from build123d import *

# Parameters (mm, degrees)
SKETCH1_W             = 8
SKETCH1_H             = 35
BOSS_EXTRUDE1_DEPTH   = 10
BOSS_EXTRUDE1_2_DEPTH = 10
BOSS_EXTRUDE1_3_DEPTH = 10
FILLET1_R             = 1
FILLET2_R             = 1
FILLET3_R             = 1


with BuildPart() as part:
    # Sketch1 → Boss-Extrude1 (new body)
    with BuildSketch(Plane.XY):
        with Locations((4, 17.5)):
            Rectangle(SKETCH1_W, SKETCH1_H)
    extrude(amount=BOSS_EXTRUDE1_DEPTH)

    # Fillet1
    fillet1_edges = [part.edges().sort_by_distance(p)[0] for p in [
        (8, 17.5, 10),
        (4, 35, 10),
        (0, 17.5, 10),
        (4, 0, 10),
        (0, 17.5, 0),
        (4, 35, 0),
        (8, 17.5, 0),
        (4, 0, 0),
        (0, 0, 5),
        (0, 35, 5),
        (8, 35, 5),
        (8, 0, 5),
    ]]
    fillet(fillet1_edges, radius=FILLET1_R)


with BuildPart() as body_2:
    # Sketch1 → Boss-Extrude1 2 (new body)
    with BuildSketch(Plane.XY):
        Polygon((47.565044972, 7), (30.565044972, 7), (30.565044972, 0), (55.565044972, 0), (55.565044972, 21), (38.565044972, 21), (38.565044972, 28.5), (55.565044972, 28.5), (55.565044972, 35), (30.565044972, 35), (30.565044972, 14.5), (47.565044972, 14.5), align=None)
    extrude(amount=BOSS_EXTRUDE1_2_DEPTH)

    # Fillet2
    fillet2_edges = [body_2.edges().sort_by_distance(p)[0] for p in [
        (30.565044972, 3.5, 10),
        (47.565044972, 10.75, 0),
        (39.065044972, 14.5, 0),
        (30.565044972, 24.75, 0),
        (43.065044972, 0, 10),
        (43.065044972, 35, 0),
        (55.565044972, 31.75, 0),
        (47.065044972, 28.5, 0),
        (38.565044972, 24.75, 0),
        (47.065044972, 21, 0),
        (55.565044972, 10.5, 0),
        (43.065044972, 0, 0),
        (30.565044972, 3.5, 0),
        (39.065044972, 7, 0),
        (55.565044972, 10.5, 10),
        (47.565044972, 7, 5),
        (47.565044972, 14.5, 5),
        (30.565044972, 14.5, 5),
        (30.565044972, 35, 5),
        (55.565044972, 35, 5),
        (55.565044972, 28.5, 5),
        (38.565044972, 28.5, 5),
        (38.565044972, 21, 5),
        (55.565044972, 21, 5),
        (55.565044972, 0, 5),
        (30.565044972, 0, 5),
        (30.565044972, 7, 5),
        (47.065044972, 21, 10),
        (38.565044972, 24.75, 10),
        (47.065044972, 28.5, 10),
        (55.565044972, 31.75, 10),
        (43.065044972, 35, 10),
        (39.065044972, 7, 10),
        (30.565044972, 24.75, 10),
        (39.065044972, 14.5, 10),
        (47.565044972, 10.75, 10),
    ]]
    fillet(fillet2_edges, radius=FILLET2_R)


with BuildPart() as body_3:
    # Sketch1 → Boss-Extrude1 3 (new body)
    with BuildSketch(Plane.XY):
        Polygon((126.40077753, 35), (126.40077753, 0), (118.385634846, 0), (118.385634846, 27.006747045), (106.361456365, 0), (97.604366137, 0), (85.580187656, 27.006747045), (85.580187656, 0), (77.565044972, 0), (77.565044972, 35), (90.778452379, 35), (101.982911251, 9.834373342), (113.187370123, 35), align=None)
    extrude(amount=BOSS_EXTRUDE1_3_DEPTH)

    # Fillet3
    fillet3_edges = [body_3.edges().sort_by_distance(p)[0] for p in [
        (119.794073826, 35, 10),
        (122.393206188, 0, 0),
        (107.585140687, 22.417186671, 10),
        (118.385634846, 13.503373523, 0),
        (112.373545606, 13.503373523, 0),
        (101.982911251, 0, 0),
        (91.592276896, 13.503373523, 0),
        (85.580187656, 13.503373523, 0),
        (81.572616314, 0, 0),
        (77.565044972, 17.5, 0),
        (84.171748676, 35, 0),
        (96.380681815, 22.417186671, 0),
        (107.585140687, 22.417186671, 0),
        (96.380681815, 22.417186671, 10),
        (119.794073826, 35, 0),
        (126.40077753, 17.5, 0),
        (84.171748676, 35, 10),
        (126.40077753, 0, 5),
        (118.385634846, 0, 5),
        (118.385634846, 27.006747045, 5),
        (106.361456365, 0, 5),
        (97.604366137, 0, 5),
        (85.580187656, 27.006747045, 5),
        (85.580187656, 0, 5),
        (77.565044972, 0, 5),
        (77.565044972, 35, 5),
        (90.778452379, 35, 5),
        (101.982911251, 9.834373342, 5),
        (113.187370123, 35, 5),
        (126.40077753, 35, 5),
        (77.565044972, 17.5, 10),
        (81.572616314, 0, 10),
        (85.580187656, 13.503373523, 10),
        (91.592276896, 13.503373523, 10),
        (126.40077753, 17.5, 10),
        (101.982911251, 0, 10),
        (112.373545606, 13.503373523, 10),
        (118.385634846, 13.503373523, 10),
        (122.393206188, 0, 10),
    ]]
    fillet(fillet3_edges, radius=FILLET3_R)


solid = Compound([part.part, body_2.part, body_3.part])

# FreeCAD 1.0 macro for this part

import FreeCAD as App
import Part
import Sketcher

V = App.Vector
Q = App.Units.Quantity

doc = App.newDocument("Part")
body = doc.addObject("PartDesign::Body", "Body")

# Sketch on XY plane
sketch1 = doc.addObject("Sketcher::SketchObject", "Sketch")
body.addObject(sketch1)
sketch1.AttachmentSupport = (doc.XY_Plane, [""])
sketch1.MapMode = "FlatFace"
sketch1.addGeometry([
    Part.LineSegment(V(0, 35, 0), V(0, 0, 0)),
    Part.LineSegment(V(0, 0, 0), V(8, 0, 0)),
    Part.LineSegment(V(8, 0, 0), V(8, 35, 0)),
    Part.LineSegment(V(8, 35, 0), V(0, 35, 0)),
], False)
sketch1.addConstraint([
    Sketcher.Constraint("Coincident", 0, 2, 1, 1),
    Sketcher.Constraint("Coincident", 1, 2, 2, 1),
    Sketcher.Constraint("Coincident", 2, 2, 3, 1),
    Sketcher.Constraint("Coincident", 3, 2, 0, 1),
    Sketcher.Constraint("Vertical", 0),
    Sketcher.Constraint("Horizontal", 1),
    Sketcher.Constraint("Vertical", 2),
    Sketcher.Constraint("Horizontal", 3),
    Sketcher.Constraint("Coincident", 0, 2, -1, 1),
    Sketcher.Constraint("DistanceX", 1, 1, 1, 2, 8.0),
    Sketcher.Constraint("DistanceY", 0, 2, 0, 1, 35.0),
])
pad1 = doc.addObject("PartDesign::Pad", "Pad")
body.addObject(pad1)
pad1.Profile = sketch1
pad1.Length = 10
doc.recompute()

fillet = doc.addObject("PartDesign::Fillet", "Fillet")
body.addObject(fillet)
fillet.Base = (pad1, ["Edge1"])
fillet.UseAllEdges = True
fillet.Radius = 1
body2 = doc.addObject("PartDesign::Body", "Body001")

# Sketch on XY plane
sketch2 = doc.addObject("Sketcher::SketchObject", "Sketch001")
body2.addObject(sketch2)
sketch2.AttachmentSupport = (doc.getObject("XY_Plane001"), [""])
sketch2.MapMode = "FlatFace"
sketch2.addGeometry([
    Part.LineSegment(V(48, 7, 0), V(31, 7, 0)),  # 0
    Part.LineSegment(V(31, 7, 0), V(31, 0, 0)),  # 1
    Part.LineSegment(V(31, 0, 0), V(56, 0, 0)),  # 2
    Part.LineSegment(V(56, 0, 0), V(56, 21, 0)),  # 3
    Part.LineSegment(V(56, 21, 0), V(39, 21, 0)),  # 4
    Part.LineSegment(V(39, 21, 0), V(39, 28, 0)),  # 5
    Part.LineSegment(V(39, 28, 0), V(56, 28, 0)),  # 6
    Part.LineSegment(V(56, 28, 0), V(56, 35, 0)),  # 7
    Part.LineSegment(V(56, 35, 0), V(31, 35, 0)),  # 8
    Part.LineSegment(V(31, 35, 0), V(31, 14, 0)),  # 9
    Part.LineSegment(V(31, 14, 0), V(48, 14, 0)),  # 10
    Part.LineSegment(V(48, 14, 0), V(48, 7, 0)),  # 11
], False)
sketch2.addConstraint([
    Sketcher.Constraint("Coincident", 0, 2, 1, 1),
    Sketcher.Constraint("Coincident", 1, 2, 2, 1),
    Sketcher.Constraint("Coincident", 2, 2, 3, 1),
    Sketcher.Constraint("Coincident", 3, 2, 4, 1),
    Sketcher.Constraint("Coincident", 4, 2, 5, 1),
    Sketcher.Constraint("Coincident", 5, 2, 6, 1),
    Sketcher.Constraint("Coincident", 6, 2, 7, 1),
    Sketcher.Constraint("Coincident", 7, 2, 8, 1),
    Sketcher.Constraint("Coincident", 8, 2, 9, 1),
    Sketcher.Constraint("Coincident", 9, 2, 10, 1),
    Sketcher.Constraint("Coincident", 10, 2, 11, 1),
    Sketcher.Constraint("Coincident", 11, 2, 0, 1),
    Sketcher.Constraint("Horizontal", 0),
    Sketcher.Constraint("Vertical", 1),
    Sketcher.Constraint("Horizontal", 2),
    Sketcher.Constraint("Vertical", 3),
    Sketcher.Constraint("Horizontal", 4),
    Sketcher.Constraint("Vertical", 5),
    Sketcher.Constraint("Horizontal", 6),
    Sketcher.Constraint("Vertical", 7),
    Sketcher.Constraint("Horizontal", 8),
    Sketcher.Constraint("Vertical", 9),
    Sketcher.Constraint("Horizontal", 10),
    Sketcher.Constraint("Vertical", 11),
    Sketcher.Constraint("PointOnObject", 1, 2, -1),
    Sketcher.Constraint("Vertical", 3, 2, 6, 2),
    Sketcher.Constraint("Vertical", 1, 2, 8, 2),
    Sketcher.Constraint("Equal", 0, 4),
    Sketcher.Constraint("Equal", 5, 11),
    Sketcher.Constraint("DistanceX", 0, 2, 0, 1, 17.0),
    Sketcher.Constraint("DistanceX", 2, 1, 2, 2, 25.0),
    Sketcher.Constraint("DistanceY", 1, 2, 1, 1, 7.0),
    Sketcher.Constraint("DistanceY", 3, 1, 3, 2, 21.0),
    Sketcher.Constraint("DistanceY", 5, 1, 5, 2, 7.5),
    Sketcher.Constraint("DistanceY", 7, 1, 7, 2, 6.5),
    Sketcher.Constraint("DistanceX", -1, 1, 0, 2, 30.565045),
])
pad2 = doc.addObject("PartDesign::Pad", "Pad001")
body2.addObject(pad2)
pad2.Profile = sketch2
pad2.Length = 10
doc.recompute()

fillet2 = doc.addObject("PartDesign::Fillet", "Fillet001")
body2.addObject(fillet2)
fillet2.Base = (pad2, ["Edge1"])
fillet2.UseAllEdges = True
fillet2.Radius = 1
body3 = doc.addObject("PartDesign::Body", "Body002")

# Sketch on XY plane
sketch3 = doc.addObject("Sketcher::SketchObject", "Sketch002")
body3.addObject(sketch3)
sketch3.AttachmentSupport = (doc.getObject("XY_Plane002"), [""])
sketch3.MapMode = "FlatFace"
sketch3.addGeometry([
    Part.LineSegment(V(126, 0, 0), V(126, 35, 0)),  # 0
    Part.LineSegment(V(126, 35, 0), V(113, 35, 0)),  # 1
    Part.LineSegment(V(113, 35, 0), V(102, 10, 0)),  # 2
    Part.LineSegment(V(102, 10, 0), V(91, 35, 0)),  # 3
    Part.LineSegment(V(91, 35, 0), V(78, 35, 0)),  # 4
    Part.LineSegment(V(78, 35, 0), V(78, 0, 0)),  # 5
    Part.LineSegment(V(78, 0, 0), V(86, 0, 0)),  # 6
    Part.LineSegment(V(86, 0, 0), V(86, 27, 0)),  # 7
    Part.LineSegment(V(86, 27, 0), V(98, 0, 0)),  # 8
    Part.LineSegment(V(98, 0, 0), V(106, 0, 0)),  # 9
    Part.LineSegment(V(106, 0, 0), V(118, 27, 0)),  # 10
    Part.LineSegment(V(118, 27, 0), V(118, 0, 0)),  # 11
    Part.LineSegment(V(118, 0, 0), V(126, 0, 0)),  # 12
], False)
sketch3.addConstraint([
    Sketcher.Constraint("Coincident", 0, 2, 1, 1),
    Sketcher.Constraint("Coincident", 1, 2, 2, 1),
    Sketcher.Constraint("Coincident", 2, 2, 3, 1),
    Sketcher.Constraint("Coincident", 3, 2, 4, 1),
    Sketcher.Constraint("Coincident", 4, 2, 5, 1),
    Sketcher.Constraint("Coincident", 5, 2, 6, 1),
    Sketcher.Constraint("Coincident", 6, 2, 7, 1),
    Sketcher.Constraint("Coincident", 7, 2, 8, 1),
    Sketcher.Constraint("Coincident", 8, 2, 9, 1),
    Sketcher.Constraint("Coincident", 9, 2, 10, 1),
    Sketcher.Constraint("Coincident", 10, 2, 11, 1),
    Sketcher.Constraint("Coincident", 11, 2, 12, 1),
    Sketcher.Constraint("Coincident", 12, 2, 0, 1),
    Sketcher.Constraint("Vertical", 0),
    Sketcher.Constraint("Horizontal", 1),
    Sketcher.Constraint("Horizontal", 4),
    Sketcher.Constraint("Vertical", 5),
    Sketcher.Constraint("Horizontal", 6),
    Sketcher.Constraint("Vertical", 7),
    Sketcher.Constraint("Horizontal", 9),
    Sketcher.Constraint("Vertical", 11),
    Sketcher.Constraint("Horizontal", 12),
    Sketcher.Constraint("PointOnObject", 5, 2, -1),
    Sketcher.Constraint("PointOnObject", 8, 2, -1),
    Sketcher.Constraint("PointOnObject", 11, 2, -1),
    Sketcher.Constraint("Parallel", 3, 8),
    Sketcher.Constraint("Parallel", 2, 10),
    Sketcher.Constraint("Horizontal", 1, 2, 3, 2),
    Sketcher.Constraint("Horizontal", 7, 2, 10, 2),
    Sketcher.Constraint("Equal", 1, 4),
    Sketcher.Constraint("Equal", 6, 12),
    Sketcher.Constraint("Equal", 2, 3),
    Sketcher.Constraint("DistanceY", 0, 1, 0, 2, 35.0),
    Sketcher.Constraint("Angle", 2, Q("-114 deg")),
    Sketcher.Constraint("DistanceX", 9, 1, 9, 2, 8.75709),
    Sketcher.Constraint("DistanceX", 1, 2, 1, 1, 13.213407),
    Sketcher.Constraint("DistanceX", 6, 1, 6, 2, 8.015143),
    Sketcher.Constraint("DistanceY", 7, 1, 7, 2, 27.006747),
    Sketcher.Constraint("DistanceX", -1, 1, 1, 2, 113.18737),
])
pad3 = doc.addObject("PartDesign::Pad", "Pad002")
body3.addObject(pad3)
pad3.Profile = sketch3
pad3.Length = 10
doc.recompute()

fillet3 = doc.addObject("PartDesign::Fillet", "Fillet002")
body3.addObject(fillet3)
fillet3.Base = (pad3, ["Edge1"])
fillet3.UseAllEdges = True
fillet3.Radius = 1

doc.recompute()
